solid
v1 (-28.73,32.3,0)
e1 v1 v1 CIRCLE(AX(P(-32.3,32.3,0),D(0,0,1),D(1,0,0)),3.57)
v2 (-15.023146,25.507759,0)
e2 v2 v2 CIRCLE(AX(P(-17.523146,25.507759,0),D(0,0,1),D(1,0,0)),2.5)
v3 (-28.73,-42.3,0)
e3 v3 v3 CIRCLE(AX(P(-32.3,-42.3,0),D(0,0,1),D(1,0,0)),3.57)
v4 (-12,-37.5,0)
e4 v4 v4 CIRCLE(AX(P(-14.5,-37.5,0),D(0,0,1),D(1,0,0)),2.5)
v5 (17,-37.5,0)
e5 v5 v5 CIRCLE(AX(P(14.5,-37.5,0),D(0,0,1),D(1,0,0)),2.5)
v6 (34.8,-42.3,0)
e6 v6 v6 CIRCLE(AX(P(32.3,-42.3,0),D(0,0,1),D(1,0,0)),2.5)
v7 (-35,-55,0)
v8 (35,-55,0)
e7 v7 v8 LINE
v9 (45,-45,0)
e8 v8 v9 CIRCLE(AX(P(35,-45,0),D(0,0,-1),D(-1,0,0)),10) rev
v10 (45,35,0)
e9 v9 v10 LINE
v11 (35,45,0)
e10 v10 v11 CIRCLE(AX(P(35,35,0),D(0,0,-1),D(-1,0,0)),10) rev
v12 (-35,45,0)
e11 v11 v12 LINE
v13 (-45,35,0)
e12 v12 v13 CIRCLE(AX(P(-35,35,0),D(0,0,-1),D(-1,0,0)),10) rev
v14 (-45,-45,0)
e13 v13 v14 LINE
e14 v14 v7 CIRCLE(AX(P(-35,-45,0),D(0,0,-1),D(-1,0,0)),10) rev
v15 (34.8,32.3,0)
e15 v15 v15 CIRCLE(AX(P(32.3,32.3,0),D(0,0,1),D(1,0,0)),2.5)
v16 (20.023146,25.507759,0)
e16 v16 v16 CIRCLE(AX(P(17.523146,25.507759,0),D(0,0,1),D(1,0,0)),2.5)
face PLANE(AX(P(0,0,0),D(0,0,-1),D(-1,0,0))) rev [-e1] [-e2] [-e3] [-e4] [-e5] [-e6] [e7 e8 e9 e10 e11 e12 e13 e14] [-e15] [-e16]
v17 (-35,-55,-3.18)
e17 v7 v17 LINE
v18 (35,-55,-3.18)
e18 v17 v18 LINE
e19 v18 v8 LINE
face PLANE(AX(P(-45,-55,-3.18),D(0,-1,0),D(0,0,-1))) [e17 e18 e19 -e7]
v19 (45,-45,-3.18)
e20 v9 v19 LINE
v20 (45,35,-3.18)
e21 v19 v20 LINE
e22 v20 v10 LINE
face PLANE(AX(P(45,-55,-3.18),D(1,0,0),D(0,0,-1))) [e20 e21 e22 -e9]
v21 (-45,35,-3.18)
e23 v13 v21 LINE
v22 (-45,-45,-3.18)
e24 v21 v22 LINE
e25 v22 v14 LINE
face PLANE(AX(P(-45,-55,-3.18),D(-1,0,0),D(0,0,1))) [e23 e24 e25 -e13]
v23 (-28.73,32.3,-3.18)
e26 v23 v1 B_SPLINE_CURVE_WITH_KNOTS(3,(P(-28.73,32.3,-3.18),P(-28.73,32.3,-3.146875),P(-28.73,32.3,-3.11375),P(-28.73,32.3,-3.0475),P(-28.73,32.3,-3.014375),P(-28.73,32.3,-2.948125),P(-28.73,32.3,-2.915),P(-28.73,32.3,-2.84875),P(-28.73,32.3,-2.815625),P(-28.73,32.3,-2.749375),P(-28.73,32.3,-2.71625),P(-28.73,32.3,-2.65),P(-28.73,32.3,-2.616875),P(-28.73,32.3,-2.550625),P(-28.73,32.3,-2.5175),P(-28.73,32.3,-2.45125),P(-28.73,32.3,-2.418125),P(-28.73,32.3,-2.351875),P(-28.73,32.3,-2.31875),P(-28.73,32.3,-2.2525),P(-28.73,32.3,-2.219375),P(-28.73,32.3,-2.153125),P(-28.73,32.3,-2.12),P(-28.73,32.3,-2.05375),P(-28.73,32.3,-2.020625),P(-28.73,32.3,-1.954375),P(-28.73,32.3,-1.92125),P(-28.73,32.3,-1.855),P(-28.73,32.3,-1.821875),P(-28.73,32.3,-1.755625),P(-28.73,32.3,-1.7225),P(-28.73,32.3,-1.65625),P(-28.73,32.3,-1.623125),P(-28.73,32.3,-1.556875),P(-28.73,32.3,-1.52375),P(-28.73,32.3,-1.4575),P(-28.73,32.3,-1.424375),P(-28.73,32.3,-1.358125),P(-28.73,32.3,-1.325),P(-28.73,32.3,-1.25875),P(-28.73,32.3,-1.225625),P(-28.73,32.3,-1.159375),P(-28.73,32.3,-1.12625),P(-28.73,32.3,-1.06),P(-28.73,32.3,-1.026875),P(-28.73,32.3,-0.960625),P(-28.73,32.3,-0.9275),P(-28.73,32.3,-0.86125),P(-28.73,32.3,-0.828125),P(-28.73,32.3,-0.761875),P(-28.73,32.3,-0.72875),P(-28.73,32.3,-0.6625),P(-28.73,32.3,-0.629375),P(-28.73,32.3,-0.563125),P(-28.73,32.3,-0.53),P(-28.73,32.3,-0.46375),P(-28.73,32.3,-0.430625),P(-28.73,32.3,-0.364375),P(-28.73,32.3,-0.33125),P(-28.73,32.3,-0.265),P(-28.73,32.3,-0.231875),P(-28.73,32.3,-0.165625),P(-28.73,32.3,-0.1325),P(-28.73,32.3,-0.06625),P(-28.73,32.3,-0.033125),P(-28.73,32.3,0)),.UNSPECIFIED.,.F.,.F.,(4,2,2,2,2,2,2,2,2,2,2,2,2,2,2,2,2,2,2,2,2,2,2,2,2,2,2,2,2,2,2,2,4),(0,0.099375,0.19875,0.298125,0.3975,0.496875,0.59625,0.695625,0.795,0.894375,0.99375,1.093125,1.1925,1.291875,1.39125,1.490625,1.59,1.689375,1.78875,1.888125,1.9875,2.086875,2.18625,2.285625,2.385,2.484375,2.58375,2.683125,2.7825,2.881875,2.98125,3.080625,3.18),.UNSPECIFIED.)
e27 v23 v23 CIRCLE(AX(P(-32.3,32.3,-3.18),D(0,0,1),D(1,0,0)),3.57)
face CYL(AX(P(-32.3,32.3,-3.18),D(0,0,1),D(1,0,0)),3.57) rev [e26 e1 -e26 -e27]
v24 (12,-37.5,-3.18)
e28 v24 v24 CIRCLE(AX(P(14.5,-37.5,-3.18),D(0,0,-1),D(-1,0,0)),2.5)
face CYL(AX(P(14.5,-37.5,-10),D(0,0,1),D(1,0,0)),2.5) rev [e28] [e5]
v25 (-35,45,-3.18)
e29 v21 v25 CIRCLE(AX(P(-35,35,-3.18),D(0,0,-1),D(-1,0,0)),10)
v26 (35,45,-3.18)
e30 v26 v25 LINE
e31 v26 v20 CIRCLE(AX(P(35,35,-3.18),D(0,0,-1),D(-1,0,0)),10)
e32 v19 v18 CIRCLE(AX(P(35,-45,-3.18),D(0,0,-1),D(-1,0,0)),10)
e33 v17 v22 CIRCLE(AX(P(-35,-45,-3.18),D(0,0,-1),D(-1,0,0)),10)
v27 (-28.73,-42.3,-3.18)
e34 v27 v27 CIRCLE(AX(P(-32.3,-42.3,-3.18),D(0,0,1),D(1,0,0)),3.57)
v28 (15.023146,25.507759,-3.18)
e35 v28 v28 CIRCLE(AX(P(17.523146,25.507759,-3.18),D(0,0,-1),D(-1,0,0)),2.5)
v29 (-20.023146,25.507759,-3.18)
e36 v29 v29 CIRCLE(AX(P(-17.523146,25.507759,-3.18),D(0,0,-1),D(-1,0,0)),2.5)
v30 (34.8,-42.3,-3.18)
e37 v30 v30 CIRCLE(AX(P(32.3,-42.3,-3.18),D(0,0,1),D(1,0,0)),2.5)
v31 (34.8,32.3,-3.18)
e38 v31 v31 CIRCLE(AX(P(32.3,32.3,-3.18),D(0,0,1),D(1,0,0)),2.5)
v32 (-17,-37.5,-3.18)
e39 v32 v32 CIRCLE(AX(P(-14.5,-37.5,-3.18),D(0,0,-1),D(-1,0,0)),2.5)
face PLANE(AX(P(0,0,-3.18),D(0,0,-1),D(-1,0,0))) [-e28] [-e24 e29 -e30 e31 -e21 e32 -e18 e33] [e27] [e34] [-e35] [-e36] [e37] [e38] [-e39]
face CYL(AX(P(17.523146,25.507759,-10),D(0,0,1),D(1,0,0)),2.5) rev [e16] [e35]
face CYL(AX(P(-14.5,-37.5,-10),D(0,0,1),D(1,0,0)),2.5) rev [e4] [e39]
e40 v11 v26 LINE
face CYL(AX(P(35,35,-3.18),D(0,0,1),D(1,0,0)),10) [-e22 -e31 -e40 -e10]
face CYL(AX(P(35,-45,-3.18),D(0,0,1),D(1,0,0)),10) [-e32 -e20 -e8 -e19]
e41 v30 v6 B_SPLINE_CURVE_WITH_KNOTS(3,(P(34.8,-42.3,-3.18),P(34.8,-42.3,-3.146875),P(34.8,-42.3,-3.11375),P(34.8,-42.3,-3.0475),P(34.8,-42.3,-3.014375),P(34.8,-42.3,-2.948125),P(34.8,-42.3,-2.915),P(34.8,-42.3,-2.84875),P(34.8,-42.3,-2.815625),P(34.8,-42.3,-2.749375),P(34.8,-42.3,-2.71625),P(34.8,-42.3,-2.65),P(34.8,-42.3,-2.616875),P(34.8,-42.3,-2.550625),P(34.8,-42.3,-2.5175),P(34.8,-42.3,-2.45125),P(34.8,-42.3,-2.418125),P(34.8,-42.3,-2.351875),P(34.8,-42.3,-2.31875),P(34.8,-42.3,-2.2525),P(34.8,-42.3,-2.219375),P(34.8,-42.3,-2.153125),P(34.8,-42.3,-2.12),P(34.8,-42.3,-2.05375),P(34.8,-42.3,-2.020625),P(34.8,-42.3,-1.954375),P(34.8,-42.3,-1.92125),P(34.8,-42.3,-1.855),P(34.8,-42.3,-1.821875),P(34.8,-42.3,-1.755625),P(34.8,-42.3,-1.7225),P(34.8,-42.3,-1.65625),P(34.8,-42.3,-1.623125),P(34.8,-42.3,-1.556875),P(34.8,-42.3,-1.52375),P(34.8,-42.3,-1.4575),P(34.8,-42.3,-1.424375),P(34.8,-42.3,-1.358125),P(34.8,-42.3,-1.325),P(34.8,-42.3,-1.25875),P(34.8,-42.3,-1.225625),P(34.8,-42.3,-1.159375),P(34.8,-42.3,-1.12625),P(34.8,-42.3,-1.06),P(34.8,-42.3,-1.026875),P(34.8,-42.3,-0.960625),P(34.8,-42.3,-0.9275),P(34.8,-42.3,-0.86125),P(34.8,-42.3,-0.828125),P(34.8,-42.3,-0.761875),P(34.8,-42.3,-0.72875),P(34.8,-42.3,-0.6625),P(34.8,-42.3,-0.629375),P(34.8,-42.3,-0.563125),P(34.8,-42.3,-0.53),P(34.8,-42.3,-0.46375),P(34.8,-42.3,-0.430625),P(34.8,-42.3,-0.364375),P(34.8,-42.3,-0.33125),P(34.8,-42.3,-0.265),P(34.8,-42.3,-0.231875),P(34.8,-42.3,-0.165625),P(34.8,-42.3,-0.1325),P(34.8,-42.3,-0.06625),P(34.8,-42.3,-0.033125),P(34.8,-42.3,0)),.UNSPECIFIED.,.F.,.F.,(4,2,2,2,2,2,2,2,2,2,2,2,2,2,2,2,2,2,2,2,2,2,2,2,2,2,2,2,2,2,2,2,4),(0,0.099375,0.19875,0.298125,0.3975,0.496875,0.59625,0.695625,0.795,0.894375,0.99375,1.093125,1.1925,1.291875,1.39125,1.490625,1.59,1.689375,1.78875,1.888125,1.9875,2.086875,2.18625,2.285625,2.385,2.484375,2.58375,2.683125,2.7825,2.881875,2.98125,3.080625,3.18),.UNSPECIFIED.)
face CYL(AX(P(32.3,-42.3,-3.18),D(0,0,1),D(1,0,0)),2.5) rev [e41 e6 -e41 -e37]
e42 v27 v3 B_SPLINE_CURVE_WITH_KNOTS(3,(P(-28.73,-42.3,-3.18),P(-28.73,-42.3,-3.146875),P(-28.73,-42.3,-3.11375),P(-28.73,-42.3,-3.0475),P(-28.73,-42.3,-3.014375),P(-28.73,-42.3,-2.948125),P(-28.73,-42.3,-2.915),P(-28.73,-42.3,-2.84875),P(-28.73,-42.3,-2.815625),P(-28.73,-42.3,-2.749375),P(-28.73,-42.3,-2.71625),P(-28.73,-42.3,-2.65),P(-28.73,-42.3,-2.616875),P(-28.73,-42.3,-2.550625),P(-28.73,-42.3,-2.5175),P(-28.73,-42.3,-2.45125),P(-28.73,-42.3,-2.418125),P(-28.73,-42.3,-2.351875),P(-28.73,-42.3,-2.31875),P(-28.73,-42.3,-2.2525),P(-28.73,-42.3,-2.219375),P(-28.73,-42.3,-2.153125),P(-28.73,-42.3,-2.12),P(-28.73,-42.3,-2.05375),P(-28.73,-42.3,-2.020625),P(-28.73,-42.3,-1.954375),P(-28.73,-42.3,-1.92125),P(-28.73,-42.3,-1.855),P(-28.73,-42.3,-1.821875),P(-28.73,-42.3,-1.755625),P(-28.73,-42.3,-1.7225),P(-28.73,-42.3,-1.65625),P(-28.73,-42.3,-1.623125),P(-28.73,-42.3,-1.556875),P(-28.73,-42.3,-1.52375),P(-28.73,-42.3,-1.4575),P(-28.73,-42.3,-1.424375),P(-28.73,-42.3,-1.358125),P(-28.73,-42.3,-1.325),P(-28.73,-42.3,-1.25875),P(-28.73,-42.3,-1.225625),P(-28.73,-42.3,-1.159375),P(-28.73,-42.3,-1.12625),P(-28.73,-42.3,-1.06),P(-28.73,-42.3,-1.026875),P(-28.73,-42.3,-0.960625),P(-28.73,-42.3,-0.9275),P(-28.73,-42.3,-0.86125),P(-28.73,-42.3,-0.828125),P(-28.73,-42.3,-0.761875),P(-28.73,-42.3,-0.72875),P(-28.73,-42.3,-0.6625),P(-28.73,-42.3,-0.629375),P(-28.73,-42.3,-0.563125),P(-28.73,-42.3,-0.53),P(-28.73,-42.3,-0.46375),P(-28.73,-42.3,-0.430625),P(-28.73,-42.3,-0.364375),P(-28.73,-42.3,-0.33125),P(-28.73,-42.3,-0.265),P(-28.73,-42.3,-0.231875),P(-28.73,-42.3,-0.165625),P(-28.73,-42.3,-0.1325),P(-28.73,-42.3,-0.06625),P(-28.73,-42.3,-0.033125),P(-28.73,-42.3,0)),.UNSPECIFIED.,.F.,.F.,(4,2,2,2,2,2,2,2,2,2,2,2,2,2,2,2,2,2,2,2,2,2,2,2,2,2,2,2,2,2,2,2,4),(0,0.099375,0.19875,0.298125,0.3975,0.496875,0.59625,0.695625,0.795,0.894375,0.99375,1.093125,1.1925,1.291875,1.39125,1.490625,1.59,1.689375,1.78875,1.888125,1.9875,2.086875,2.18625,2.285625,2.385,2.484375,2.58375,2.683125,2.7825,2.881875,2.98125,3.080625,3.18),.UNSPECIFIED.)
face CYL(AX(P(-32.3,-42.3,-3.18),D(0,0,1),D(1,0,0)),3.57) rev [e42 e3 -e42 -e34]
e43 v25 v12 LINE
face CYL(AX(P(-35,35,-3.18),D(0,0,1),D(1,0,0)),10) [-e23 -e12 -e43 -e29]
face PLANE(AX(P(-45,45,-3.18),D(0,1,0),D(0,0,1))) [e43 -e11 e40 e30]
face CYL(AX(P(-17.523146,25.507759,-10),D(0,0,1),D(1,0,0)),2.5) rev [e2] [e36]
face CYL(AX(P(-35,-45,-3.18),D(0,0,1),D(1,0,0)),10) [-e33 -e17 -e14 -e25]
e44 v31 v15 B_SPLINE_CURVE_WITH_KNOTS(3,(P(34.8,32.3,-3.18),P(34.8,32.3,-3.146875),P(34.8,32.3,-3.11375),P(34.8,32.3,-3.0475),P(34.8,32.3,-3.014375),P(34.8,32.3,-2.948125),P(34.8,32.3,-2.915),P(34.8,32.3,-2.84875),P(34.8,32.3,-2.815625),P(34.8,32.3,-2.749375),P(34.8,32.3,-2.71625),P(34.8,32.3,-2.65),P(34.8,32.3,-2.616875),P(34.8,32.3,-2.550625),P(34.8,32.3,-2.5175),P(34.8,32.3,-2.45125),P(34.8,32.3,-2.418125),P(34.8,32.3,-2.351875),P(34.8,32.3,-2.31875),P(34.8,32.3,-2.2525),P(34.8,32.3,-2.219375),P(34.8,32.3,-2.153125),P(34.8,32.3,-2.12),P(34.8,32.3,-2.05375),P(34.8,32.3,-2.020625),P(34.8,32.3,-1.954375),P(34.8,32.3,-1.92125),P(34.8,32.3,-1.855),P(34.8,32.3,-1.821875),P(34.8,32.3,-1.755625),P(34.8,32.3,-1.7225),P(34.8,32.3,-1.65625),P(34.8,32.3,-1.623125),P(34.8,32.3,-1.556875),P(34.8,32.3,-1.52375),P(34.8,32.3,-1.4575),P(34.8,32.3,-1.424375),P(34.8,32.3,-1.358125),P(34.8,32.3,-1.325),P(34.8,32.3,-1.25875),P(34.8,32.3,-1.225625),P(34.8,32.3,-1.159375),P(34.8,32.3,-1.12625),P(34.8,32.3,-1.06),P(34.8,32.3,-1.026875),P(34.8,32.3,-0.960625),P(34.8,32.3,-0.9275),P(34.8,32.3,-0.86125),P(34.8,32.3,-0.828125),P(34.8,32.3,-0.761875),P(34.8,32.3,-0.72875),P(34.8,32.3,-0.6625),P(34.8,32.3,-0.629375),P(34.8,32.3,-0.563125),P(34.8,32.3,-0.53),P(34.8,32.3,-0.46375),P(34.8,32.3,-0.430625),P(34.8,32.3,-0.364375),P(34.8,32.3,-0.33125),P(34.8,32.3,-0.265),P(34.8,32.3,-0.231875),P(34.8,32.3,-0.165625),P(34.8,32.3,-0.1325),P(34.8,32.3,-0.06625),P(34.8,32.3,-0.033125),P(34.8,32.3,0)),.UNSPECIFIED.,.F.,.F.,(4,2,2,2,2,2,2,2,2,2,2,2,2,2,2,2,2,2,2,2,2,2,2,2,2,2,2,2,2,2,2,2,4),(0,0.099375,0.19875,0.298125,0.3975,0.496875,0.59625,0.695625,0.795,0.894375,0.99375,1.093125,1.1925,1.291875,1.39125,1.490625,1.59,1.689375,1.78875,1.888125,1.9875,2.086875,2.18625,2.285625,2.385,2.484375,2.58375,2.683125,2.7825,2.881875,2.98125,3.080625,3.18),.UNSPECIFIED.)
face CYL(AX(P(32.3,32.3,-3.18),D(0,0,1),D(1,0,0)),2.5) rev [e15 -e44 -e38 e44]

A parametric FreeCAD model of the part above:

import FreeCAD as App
import Part
import Sketcher
from FreeCAD import Vector


def edges_at(feature, points):
    """Names of the edges that pass closest to the given points."""
    edges = feature.Shape.Edges
    near = lambda p: min(range(len(edges)), key=lambda i: edges[i].distToShape(Part.Vertex(*p))[0])
    return sorted({f"Edge{near(p) + 1}" for p in points})


def add_polygon(sketch, points):
    """Adds a closed chain of lines whose ends are joined by coincident constraints."""
    first, n = sketch.GeometryCount, len(points)
    for a, b in zip(points, points[1:] + points[:1]):
        sketch.addGeometry(Part.LineSegment(App.Vector(*a, 0), App.Vector(*b, 0)), False)
    for i in range(n):
        sketch.addConstraint(Sketcher.Constraint("Coincident", first + i, 2, first + (i + 1) % n, 1))

doc = App.newDocument("Part")
params = doc.addObject("Spreadsheet::Sheet", "Params")
for row, (alias, value) in enumerate([
    ("sketch1_diameter", "5 mm"),
    ("sketch1_diameter2", "7.14 mm"),
    ("sketch1_width", "90 mm"),
    ("sketch1_height", "100 mm"),
    ("pad1_length", "3.18 mm"),
    ("fillet_radius", "10 mm"),
    ("sketch2_diameter", "5 mm"),
    ("pocket1_length", "10 mm"),
], start=1):
    params.set(f"A{row}", alias)
    params.set(f"B{row}", "=" + value)
    params.setAlias(f"B{row}", alias)

body = doc.addObject("PartDesign::Body", "Body")

sketch1 = body.newObject("Sketcher::SketchObject", "Sketch")
sketch1.AttachmentSupport = (doc.getObject("XY_Plane"), [""])
sketch1.MapMode = "FlatFace"
add_polygon(sketch1, [(-45, 45), (-45, -55), (45, -55), (45, 45)])
sketch1.addGeometry(Part.Circle(Vector(-32.3, -42.3, 0), Vector(0, 0, 1), 3.6), False)
sketch1.addGeometry(Part.Circle(Vector(32.3, -42.3, 0), Vector(0, 0, 1), 2.5), False)
sketch1.addGeometry(Part.Circle(Vector(-32.3, 32.3, 0), Vector(0, 0, 1), 3.6), False)
sketch1.addGeometry(Part.Circle(Vector(32.3, 32.3, 0), Vector(0, 0, 1), 2.5), False)
sketch1.addConstraint([
    Sketcher.Constraint("Vertical", 0),
    Sketcher.Constraint("Horizontal", 1),
    Sketcher.Constraint("Vertical", 2),
    Sketcher.Constraint("Horizontal", 3),
    Sketcher.Constraint("Equal", 4, 6),
    Sketcher.Constraint("Equal", 5, 7),
    Sketcher.Constraint("Symmetric", 4, 3, 5, 3, -2),
    Sketcher.Constraint("Symmetric", 6, 3, 7, 3, -2),
    Sketcher.Constraint("Vertical", 4, 3, 6, 3),
    Sketcher.Constraint("Diameter", 5, 5.0),
    Sketcher.Constraint("Diameter", 4, 7.14),
    Sketcher.Constraint("DistanceX", 1, 1, 1, 2, 90.0),
    Sketcher.Constraint("DistanceY", 0, 2, 0, 1, 100.0),
    Sketcher.Constraint("DistanceX", 0, 2, -1, 1, 45.0),
    Sketcher.Constraint("DistanceY", 0, 2, -1, 1, 55.0),
    Sketcher.Constraint("DistanceX", 4, 3, -1, 1, 32.3),
    Sketcher.Constraint("DistanceY", 4, 3, -1, 1, 42.3),
    Sketcher.Constraint("DistanceY", -1, 1, 6, 3, 32.3),
])
sketch1.setExpression("Constraints[13]", "Params.sketch1_diameter")
sketch1.setExpression("Constraints[14]", "Params.sketch1_diameter2")
sketch1.setExpression("Constraints[15]", "Params.sketch1_width")
sketch1.setExpression("Constraints[16]", "Params.sketch1_height")
pad1 = body.newObject("PartDesign::Pad", "Pad")
pad1.Profile = sketch1
pad1.setExpression("Length", "Params.pad1_length")
pad1.Reversed = True
doc.recompute()

fillet = body.newObject("PartDesign::Fillet", "Fillet")
fillet.Base = (pad1, edges_at(pad1, [
    (-45, 45, -1.59),
    (45, 45, -1.59),
    (45, -55, -1.59),
    (-45, -55, -1.59),
]))
fillet.setExpression("Radius", "Params.fillet_radius")

sketch2 = body.newObject("Sketcher::SketchObject", "Sketch001")
sketch2.AttachmentSupport = (doc.getObject("XY_Plane"), [""])
sketch2.MapMode = "FlatFace"
sketch2.addGeometry([
    Part.Circle(Vector(-14.5, -37.5, 0), Vector(0, 0, 1), 2.5),
    Part.Circle(Vector(14.5, -37.5, 0), Vector(0, 0, 1), 2.5),
    Part.Circle(Vector(-17.5, 25.5, 0), Vector(0, 0, 1), 2.5),
    Part.Circle(Vector(17.5, 25.5, 0), Vector(0, 0, 1), 2.5),
], False)
sketch2.addConstraint([
    Sketcher.Constraint("Equal", 0, 1),
    Sketcher.Constraint("Equal", 1, 2),
    Sketcher.Constraint("Equal", 2, 3),
    Sketcher.Constraint("Symmetric", 0, 3, 1, 3, -2),
    Sketcher.Constraint("Symmetric", 2, 3, 3, 3, -2),
    Sketcher.Constraint("Diameter", 0, 5.0),
    Sketcher.Constraint("DistanceX", 0, 3, 1, 3, 29.0),
    Sketcher.Constraint("DistanceY", 0, 3, -1, 1, 37.5),
    Sketcher.Constraint("DistanceY", -1, 1, 2, 3, 25.507759),
    Sketcher.Constraint("DistanceX", 2, 3, -1, 1, 17.523146),
])
sketch2.setExpression("Constraints[5]", "Params.sketch2_diameter")
pocket1 = body.newObject("PartDesign::Pocket", "Pocket")
pocket1.Profile = sketch2
pocket1.setExpression("Length", "Params.pocket1_length")

doc.recompute()
